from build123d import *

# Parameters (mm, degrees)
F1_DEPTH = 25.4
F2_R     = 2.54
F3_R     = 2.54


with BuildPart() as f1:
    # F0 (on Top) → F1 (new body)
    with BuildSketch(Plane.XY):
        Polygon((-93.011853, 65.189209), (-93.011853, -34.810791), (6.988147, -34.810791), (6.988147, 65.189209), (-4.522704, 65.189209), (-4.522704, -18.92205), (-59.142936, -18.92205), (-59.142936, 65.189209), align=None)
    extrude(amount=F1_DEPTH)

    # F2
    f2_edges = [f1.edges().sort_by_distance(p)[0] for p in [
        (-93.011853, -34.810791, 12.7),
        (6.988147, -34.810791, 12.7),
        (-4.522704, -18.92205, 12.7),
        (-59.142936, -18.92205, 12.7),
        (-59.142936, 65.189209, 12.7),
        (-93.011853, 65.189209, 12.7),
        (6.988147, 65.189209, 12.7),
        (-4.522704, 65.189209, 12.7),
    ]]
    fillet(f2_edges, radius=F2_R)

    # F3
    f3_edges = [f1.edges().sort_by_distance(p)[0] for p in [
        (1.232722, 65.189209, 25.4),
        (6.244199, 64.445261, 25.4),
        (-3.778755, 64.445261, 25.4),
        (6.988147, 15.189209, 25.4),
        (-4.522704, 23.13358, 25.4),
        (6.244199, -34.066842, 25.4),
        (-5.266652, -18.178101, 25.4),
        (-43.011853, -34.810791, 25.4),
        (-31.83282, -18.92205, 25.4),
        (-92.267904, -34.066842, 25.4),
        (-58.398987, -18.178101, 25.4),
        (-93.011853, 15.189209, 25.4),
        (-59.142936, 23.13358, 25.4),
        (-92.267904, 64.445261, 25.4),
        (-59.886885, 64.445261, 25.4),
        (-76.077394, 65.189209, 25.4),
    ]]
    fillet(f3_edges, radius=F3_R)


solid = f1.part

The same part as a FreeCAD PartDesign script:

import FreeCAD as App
import Part
import Sketcher
from FreeCAD import Vector
Q = App.Units.Quantity


def edges_at(feature, points):
    """Names of the edges that pass closest to the given points."""
    edges = feature.Shape.Edges
    near = lambda p: min(range(len(edges)), key=lambda i: edges[i].distToShape(Part.Vertex(*p))[0])
    return sorted({f"Edge{near(p) + 1}" for p in points})


def add_polygon(sketch, points):
    """Adds a closed chain of lines whose ends are joined by coincident constraints."""
    first, n = sketch.GeometryCount, len(points)
    for a, b in zip(points, points[1:] + points[:1]):
        sketch.addGeometry(Part.LineSegment(App.Vector(*a, 0), App.Vector(*b, 0)), False)
    for i in range(n):
        sketch.addConstraint(Sketcher.Constraint("Coincident", first + i, 2, first + (i + 1) % n, 1))

doc = App.newDocument("Part")
body = doc.addObject("PartDesign::Body", "Body")

# Sketch on XY plane
sketch1 = body.newObject("Sketcher::SketchObject", "Sketch")
sketch1.AttachmentSupport = (doc.getObject("XY_Plane"), [""])
sketch1.MapMode = "FlatFace"
add_polygon(sketch1, [(-93.011853, 65.189209), (-93.011853, -34.810791), (6.988147, -34.810791), (6.988147, 65.189209), (-4.522704, 65.189209), (-4.522704, -18.92205), (-59.142936, -18.92205), (-59.142936, 65.189209)])  # lines 0-7
sketch1.addConstraint(Sketcher.Constraint("Vertical", 0))
sketch1.addConstraint(Sketcher.Constraint("Horizontal", 1))
sketch1.addConstraint(Sketcher.Constraint("Vertical", 2))
sketch1.addConstraint(Sketcher.Constraint("Horizontal", 3))
sketch1.addConstraint(Sketcher.Constraint("Vertical", 4))
sketch1.addConstraint(Sketcher.Constraint("Horizontal", 5))
sketch1.addConstraint(Sketcher.Constraint("Vertical", 6))
sketch1.addConstraint(Sketcher.Constraint("Horizontal", 7))
sketch1.addConstraint(Sketcher.Constraint("Horizontal", 3, 2, 6, 2))
sketch1.addConstraint(Sketcher.Constraint("Equal", 1, 0))
sketch1.addConstraint(Sketcher.Constraint("DistanceX", 1, 1, 1, 2, Q("100 mm")))
sketch1.addConstraint(Sketcher.Constraint("DistanceX", 3, 2, 3, 1, Q("11.510851 mm")))
sketch1.addConstraint(Sketcher.Constraint("DistanceY", 4, 2, 4, 1, Q("84.111259 mm")))
sketch1.addConstraint(Sketcher.Constraint("DistanceX", 5, 2, 5, 1, Q("54.620232 mm")))
sketch1.addConstraint(Sketcher.Constraint("DistanceY", 0, 2, -1, 1, Q("34.810791 mm")))
sketch1.addConstraint(Sketcher.Constraint("DistanceX", 0, 2, -1, 1, Q("93.011853 mm")))
pad1 = body.newObject("PartDesign::Pad", "Pad")
pad1.Profile = sketch1
pad1.Length = Q("1 in")
doc.recompute()

fillet = body.newObject("PartDesign::Fillet", "Fillet")
fillet.Base = (pad1, edges_at(pad1, [
    (-93.012, -34.811, 12.7),
    (6.988, -34.811, 12.7),
    (-4.523, -18.922, 12.7),
    (-59.143, -18.922, 12.7),
    (-59.143, 65.189, 12.7),
    (-93.012, 65.189, 12.7),
    (6.988, 65.189, 12.7),
    (-4.523, 65.189, 12.7),
]))
fillet.Radius = Q("0.1 in")
doc.recompute()

fillet2 = body.newObject("PartDesign::Fillet", "Fillet001")
fillet2.Base = (fillet, edges_at(fillet, [
    (1.233, 65.189, 25.4),
    (6.244, 64.445, 25.4),
    (-3.779, 64.445, 25.4),
    (6.988, 15.189, 25.4),
    (-4.523, 23.134, 25.4),
    (6.244, -34.067, 25.4),
    (-5.267, -18.178, 25.4),
    (-43.012, -34.811, 25.4),
    (-31.833, -18.922, 25.4),
    (-92.268, -34.067, 25.4),
    (-58.399, -18.178, 25.4),
    (-93.012, 15.189, 25.4),
    (-59.143, 23.134, 25.4),
    (-92.268, 64.445, 25.4),
    (-59.887, 64.445, 25.4),
    (-76.077, 65.189, 25.4),
]))
fillet2.Radius = Q("0.1 in")

doc.recompute()
